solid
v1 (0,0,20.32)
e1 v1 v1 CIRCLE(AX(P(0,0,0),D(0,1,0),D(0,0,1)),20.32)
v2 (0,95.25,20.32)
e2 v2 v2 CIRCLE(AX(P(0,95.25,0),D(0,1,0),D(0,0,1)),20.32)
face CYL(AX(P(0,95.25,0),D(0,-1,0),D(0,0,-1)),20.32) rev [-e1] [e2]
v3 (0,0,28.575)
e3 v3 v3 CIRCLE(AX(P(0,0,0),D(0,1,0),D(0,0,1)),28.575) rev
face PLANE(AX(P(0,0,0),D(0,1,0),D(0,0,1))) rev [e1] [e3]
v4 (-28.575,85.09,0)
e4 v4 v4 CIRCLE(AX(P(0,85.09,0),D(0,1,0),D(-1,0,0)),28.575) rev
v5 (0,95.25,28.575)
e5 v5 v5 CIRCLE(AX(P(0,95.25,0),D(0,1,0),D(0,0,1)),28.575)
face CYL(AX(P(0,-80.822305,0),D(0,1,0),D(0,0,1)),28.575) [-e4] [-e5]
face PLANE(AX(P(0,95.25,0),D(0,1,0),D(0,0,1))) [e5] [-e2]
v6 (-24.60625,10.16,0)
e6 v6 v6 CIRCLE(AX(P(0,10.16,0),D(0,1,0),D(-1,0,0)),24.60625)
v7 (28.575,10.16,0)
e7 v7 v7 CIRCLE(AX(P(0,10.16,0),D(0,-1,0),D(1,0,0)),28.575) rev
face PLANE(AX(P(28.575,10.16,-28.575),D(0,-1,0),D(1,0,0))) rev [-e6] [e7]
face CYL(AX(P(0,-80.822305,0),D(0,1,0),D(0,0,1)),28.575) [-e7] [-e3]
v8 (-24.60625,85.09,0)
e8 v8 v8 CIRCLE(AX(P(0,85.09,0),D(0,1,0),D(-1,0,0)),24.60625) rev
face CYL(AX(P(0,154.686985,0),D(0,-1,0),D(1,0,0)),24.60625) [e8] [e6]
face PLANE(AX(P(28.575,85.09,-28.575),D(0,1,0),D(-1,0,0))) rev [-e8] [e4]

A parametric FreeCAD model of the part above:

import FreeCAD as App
import Part
import Sketcher
Q = App.Units.Quantity

doc = App.newDocument("Part")
body = doc.addObject("PartDesign::Body", "Body")
body.AllowCompound = True

sketch1 = body.newObject("Sketcher::SketchObject", "Sketch")
sketch1.AttachmentSupport = (doc.getObject("XZ_Plane"), [""])
sketch1.MapMode = "FlatFace"
sketch1.addGeometry(Part.Circle(App.Vector(0, 0, 0), App.Vector(0, 0, 1), 25), False)
sketch1.addGeometry(Part.Circle(App.Vector(0, 0, 0), App.Vector(0, 0, 1), 20), False)
sketch1.addConstraint(Sketcher.Constraint("Coincident", 0, 3, -1, 1))
sketch1.addConstraint(Sketcher.Constraint("Coincident", 1, 3, -1, 1))
sketch1.addConstraint(Sketcher.Constraint("Diameter", 1, Q("1.6 in")))
sketch1.addConstraint(Sketcher.Constraint("Diameter", 0, Q("1.9375 in")))
pad1 = body.newObject("PartDesign::Pad", "Pad")
pad1.Profile = sketch1
pad1.Length = Q("3.75 in")
pad1.Reversed = True

sketch2 = body.newObject("Sketcher::SketchObject", "Sketch001")
sketch2.AttachmentSupport = (doc.getObject("XZ_Plane"), [""])
sketch2.MapMode = "FlatFace"
sketch2.AttachmentOffset = App.Placement(App.Vector(0, 0, -3.75 * 25.4), App.Rotation())
sketch2.addGeometry(Part.Circle(App.Vector(0, 0, 0), App.Vector(0, 0, 1), 29), False)
sketch2.addGeometry(Part.Circle(App.Vector(0, 0, 0), App.Vector(0, 0, 1), 25), False)
sketch2.addConstraint(Sketcher.Constraint("Coincident", 0, 3, -1, 1))
sketch2.addConstraint(Sketcher.Constraint("Coincident", 1, 3, -1, 1))
sketch2.addConstraint(Sketcher.Constraint("Diameter", 0, Q("2.25 in")))
sketch2.addConstraint(Sketcher.Constraint("Diameter", 1, Q("1.9375 in")))
pad2 = body.newObject("PartDesign::Pad", "Pad001")
pad2.Profile = sketch2
pad2.Length = Q("3.75 in")

sketch3 = body.newObject("Sketcher::SketchObject", "Sketch002")
sketch3.AttachmentSupport = (doc.getObject("XY_Plane"), [""])
sketch3.MapMode = "FlatFace"
sketch3.addGeometry(Part.LineSegment(App.Vector(-29, 85, 0), App.Vector(-29, 10, 0)), False)
sketch3.addGeometry(Part.LineSegment(App.Vector(-29, 10, 0), App.Vector(29, 10, 0)), False)
sketch3.addGeometry(Part.LineSegment(App.Vector(29, 10, 0), App.Vector(29, 85, 0)), False)
sketch3.addGeometry(Part.LineSegment(App.Vector(29, 85, 0), App.Vector(-29, 85, 0)), False)
sketch3.addConstraint(Sketcher.Constraint("Coincident", 0, 2, 1, 1))
sketch3.addConstraint(Sketcher.Constraint("Coincident", 1, 2, 2, 1))
sketch3.addConstraint(Sketcher.Constraint("Coincident", 2, 2, 3, 1))
sketch3.addConstraint(Sketcher.Constraint("Coincident", 3, 2, 0, 1))
sketch3.addConstraint(Sketcher.Constraint("Vertical", 0))
sketch3.addConstraint(Sketcher.Constraint("Horizontal", 1))
sketch3.addConstraint(Sketcher.Constraint("Vertical", 2))
sketch3.addConstraint(Sketcher.Constraint("Horizontal", 3))
sketch3.addConstraint(Sketcher.Constraint("DistanceX", 1, 1, 1, 2, Q("2.25 in")))
sketch3.addConstraint(Sketcher.Constraint("DistanceY", 0, 2, 0, 1, Q("2.95 in")))
sketch3.addConstraint(Sketcher.Constraint("DistanceY", -1, 1, 0, 2, Q("0.4 in")))
sketch3.addConstraint(Sketcher.Constraint("DistanceX", 0, 2, -1, 1, Q("1.125 in")))
pocket1 = body.newObject("PartDesign::Pocket", "Pocket")
pocket1.Profile = sketch3
pocket1.Type = "ThroughAll"
pocket1.Midplane = True

sketch4 = body.newObject("Sketcher::SketchObject", "Sketch003")
sketch4.AttachmentSupport = (doc.getObject("XZ_Plane"), [""])
sketch4.MapMode = "FlatFace"
sketch4.AttachmentOffset = App.Placement(App.Vector(0, 0, -0.4 * 25.4), App.Rotation())
sketch4.addGeometry(Part.Circle(App.Vector(0, 0, 0), App.Vector(0, 0, 1), 25), False)
sketch4.addGeometry(Part.Circle(App.Vector(0, 0, 0), App.Vector(0, 0, 1), 20), False)
sketch4.addConstraint(Sketcher.Constraint("Coincident", 0, 3, -1, 1))
sketch4.addConstraint(Sketcher.Constraint("Coincident", 1, 3, -1, 1))
sketch4.addConstraint(Sketcher.Constraint("Diameter", 1, Q("1.6 in")))
sketch4.addConstraint(Sketcher.Constraint("Diameter", 0, Q("1.9375 in")))
pad3 = body.newObject("PartDesign::Pad", "Pad002")
pad3.Profile = sketch4
pad3.Length = Q("2.95 in")
pad3.Reversed = True

doc.recompute()
